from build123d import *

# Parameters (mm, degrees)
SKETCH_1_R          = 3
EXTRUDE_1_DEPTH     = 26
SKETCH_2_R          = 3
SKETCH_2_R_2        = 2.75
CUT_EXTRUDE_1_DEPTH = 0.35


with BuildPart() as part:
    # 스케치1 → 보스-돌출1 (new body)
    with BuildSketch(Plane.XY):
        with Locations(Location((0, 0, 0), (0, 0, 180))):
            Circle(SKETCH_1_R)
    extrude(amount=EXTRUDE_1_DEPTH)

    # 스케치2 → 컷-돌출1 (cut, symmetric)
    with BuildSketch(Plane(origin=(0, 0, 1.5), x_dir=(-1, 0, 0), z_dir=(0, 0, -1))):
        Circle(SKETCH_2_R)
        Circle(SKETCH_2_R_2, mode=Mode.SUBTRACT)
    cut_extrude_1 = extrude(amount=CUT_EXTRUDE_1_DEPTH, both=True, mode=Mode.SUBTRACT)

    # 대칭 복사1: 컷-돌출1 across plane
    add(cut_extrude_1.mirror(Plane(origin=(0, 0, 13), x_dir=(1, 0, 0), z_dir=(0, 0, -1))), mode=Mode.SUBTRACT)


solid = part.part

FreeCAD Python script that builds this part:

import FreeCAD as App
import Part
import Sketcher

doc = App.newDocument("Part")
params = doc.addObject("Spreadsheet::Sheet", "Params")
for row, (alias, value) in enumerate([
    ("sketch1_diameter", "6 mm"),
    ("pad1_length", "26 mm"),
    ("sketch2_diameter", "6 mm"),
    ("sketch2_diameter2", "5.5 mm"),
    ("pocket1_length", "0.7 mm"),
], start=1):
    params.set(f"A{row}", alias)
    params.set(f"B{row}", "=" + value)
    params.setAlias(f"B{row}", alias)

body = doc.addObject("PartDesign::Body", "Body")

# Sketch on XY plane
sketch1 = body.newObject("Sketcher::SketchObject", "Sketch")
sketch1.AttachmentSupport = (doc.getObject("XY_Plane"), [""])
sketch1.MapMode = "FlatFace"
sketch1.addGeometry(Part.Circle(App.Vector(0, 0, 0), App.Vector(0, 0, 1), 3), False)
sketch1.addConstraint(Sketcher.Constraint("Coincident", 0, 3, -1, 1))
sketch1.addConstraint(Sketcher.Constraint("Diameter", 0, 6.0))
sketch1.setExpression("Constraints[1]", "Params.sketch1_diameter")
pad1 = body.newObject("PartDesign::Pad", "Pad")
pad1.Profile = sketch1
pad1.setExpression("Length", "Params.pad1_length")

# Sketch on XY plane
sketch2 = body.newObject("Sketcher::SketchObject", "Sketch001")
sketch2.AttachmentSupport = (doc.getObject("XY_Plane"), [""])
sketch2.MapMode = "FlatFace"
sketch2.AttachmentOffset = App.Placement(App.Vector(0, 0, 1.5), App.Rotation())
sketch2.addGeometry(Part.Circle(App.Vector(0, 0, 0), App.Vector(0, 0, 1), 3), False)
sketch2.addGeometry(Part.Circle(App.Vector(0, 0, 0), App.Vector(0, 0, 1), 2.75), False)
sketch2.addConstraint(Sketcher.Constraint("Coincident", 0, 3, -1, 1))
sketch2.addConstraint(Sketcher.Constraint("Coincident", 1, 3, -1, 1))
sketch2.addConstraint(Sketcher.Constraint("Diameter", 0, 6.0))
sketch2.addConstraint(Sketcher.Constraint("Diameter", 1, 5.5))
sketch2.setExpression("Constraints[2]", "Params.sketch2_diameter")
sketch2.setExpression("Constraints[3]", "Params.sketch2_diameter2")
pocket1 = body.newObject("PartDesign::Pocket", "Pocket")
pocket1.Profile = sketch2
pocket1.setExpression("Length", "Params.pocket1_length")
pocket1.Midplane = True
doc.recompute()

datumplane = body.newObject("PartDesign::Plane", "DatumPlane")
datumplane.AttachmentSupport = (doc.getObject("XY_Plane"), [""])
datumplane.MapMode = "FlatFace"
datumplane.AttachmentOffset = App.Placement(App.Vector(0, 0, 13), App.Rotation())
mirrored = body.newObject("PartDesign::Mirrored", "Mirrored")
mirrored.Originals = [pocket1]
mirrored.MirrorPlane = (datumplane, [""])
body.Tip = mirrored

doc.recompute()
